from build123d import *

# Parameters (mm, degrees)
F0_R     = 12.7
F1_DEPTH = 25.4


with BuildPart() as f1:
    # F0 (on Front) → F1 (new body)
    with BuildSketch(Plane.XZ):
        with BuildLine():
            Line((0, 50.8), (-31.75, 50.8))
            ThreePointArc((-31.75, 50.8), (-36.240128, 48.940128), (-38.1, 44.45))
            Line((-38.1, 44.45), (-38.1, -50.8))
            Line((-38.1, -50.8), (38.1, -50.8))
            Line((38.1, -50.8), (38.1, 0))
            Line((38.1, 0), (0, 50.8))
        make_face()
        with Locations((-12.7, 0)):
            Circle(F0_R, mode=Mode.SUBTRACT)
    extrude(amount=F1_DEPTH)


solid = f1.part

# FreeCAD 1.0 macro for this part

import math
import FreeCAD as App
import Part
import Sketcher
from FreeCAD import Vector
Q = App.Units.Quantity

doc = App.newDocument("Part")
body = doc.addObject("PartDesign::Body", "Body")

# Sketch on XZ plane
sketch1 = body.newObject("Sketcher::SketchObject", "Sketch")
sketch1.AttachmentSupport = (doc.getObject("XZ_Plane"), [""])
sketch1.MapMode = "FlatFace"
sketch1.addGeometry([
    Part.LineSegment(Vector(0, 51, 0), Vector(-32, 51, 0)),  # 0
    Part.ArcOfCircle(Part.Circle(Vector(-32, 44, 0), Vector(0, 0, 1), 6), math.radians(90), math.radians(180)),  # 1
    Part.LineSegment(Vector(-38, 44, 0), Vector(-38, -51, 0)),  # 2
    Part.LineSegment(Vector(-38, -51, 0), Vector(38, -51, 0)),  # 3
    Part.LineSegment(Vector(38, -51, 0), Vector(38, 0, 0)),  # 4
    Part.LineSegment(Vector(38, 0, 0), Vector(0, 51, 0)),  # 5
    Part.Circle(Vector(-13, 0, 0), Vector(0, 0, 1), 13),  # 6
], False)
sketch1.addConstraint([
    Sketcher.Constraint("Tangent", 0, 2, 1, 1),
    Sketcher.Constraint("Tangent", 1, 2, 2, 1),
    Sketcher.Constraint("Coincident", 2, 2, 3, 1),
    Sketcher.Constraint("Coincident", 3, 2, 4, 1),
    Sketcher.Constraint("Coincident", 4, 2, 5, 1),
    Sketcher.Constraint("Coincident", 5, 2, 0, 1),
    Sketcher.Constraint("Horizontal", 0),
    Sketcher.Constraint("Vertical", 2),
    Sketcher.Constraint("Horizontal", 3),
    Sketcher.Constraint("Vertical", 4),
    Sketcher.Constraint("PointOnObject", 6, 3, -1),
    Sketcher.Constraint("PointOnObject", 4, 2, -1),
    Sketcher.Constraint("PointOnObject", 5, 2, -2),
    Sketcher.Constraint("Diameter", 6, Q("1 in")),
    Sketcher.Constraint("DistanceX", 3, 1, 3, 2, Q("3 in")),
    Sketcher.Constraint("DistanceY", 4, 1, 4, 2, Q("2 in")),
    Sketcher.Constraint("Radius", 1, Q("0.25 in")),
    Sketcher.Constraint("DistanceY", -1, 1, 0, 2, Q("2 in")),
    Sketcher.Constraint("DistanceX", 1, 2, 6, 3, Q("1 in")),
    Sketcher.Constraint("Distance", 5, Q("2.5 in")),
])
pad1 = body.newObject("PartDesign::Pad", "Pad")
pad1.Profile = sketch1
pad1.Length = Q("1 in")

doc.recompute()
